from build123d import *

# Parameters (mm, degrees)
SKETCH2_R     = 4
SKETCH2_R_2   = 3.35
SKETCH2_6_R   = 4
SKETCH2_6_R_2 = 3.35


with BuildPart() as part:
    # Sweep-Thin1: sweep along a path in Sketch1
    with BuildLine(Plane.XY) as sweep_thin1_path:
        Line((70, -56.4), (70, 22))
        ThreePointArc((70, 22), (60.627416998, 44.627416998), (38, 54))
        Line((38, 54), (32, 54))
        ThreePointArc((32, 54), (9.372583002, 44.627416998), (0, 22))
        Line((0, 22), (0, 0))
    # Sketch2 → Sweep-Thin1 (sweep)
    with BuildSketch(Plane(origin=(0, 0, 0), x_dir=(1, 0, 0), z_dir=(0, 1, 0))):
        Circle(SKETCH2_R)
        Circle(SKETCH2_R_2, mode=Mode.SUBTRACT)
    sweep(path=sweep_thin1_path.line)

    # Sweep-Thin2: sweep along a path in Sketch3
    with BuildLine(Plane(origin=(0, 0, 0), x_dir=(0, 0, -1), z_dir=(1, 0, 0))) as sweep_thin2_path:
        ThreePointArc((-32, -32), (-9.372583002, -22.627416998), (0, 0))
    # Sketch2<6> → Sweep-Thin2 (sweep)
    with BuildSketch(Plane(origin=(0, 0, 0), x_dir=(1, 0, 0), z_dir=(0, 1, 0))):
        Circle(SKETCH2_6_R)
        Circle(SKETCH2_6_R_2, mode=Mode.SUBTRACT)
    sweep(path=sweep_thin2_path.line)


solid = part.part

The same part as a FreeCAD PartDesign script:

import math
import FreeCAD as App
import Part
import Sketcher

V = App.Vector
Q = App.Units.Quantity

doc = App.newDocument("Part")
body = doc.addObject("PartDesign::Body", "Body")

# Sketch on XZ plane
sketch1 = body.newObject("Sketcher::SketchObject", "Sketch")
sketch1.AttachmentSupport = (doc.getObject("XZ_Plane"), [""])
sketch1.MapMode = "FlatFace"
sketch1.addGeometry(Part.Circle(V(0, 0, 0), V(0, 0, 1), 4), False)
sketch1.addGeometry(Part.Circle(V(0, 0, 0), V(0, 0, 1), 3.4), False)
sketch1.addConstraint(Sketcher.Constraint("Coincident", 0, 3, -1, 1))
sketch1.addConstraint(Sketcher.Constraint("Coincident", 1, 3, -1, 1))
sketch1.addConstraint(Sketcher.Constraint("Diameter", 0, Q("8 mm")))
sketch1.addConstraint(Sketcher.Constraint("Diameter", 1, Q("6.7 mm")))

# Sketch on XY plane
sketch2 = body.newObject("Sketcher::SketchObject", "Sketch001")
sketch2.AttachmentSupport = (doc.getObject("XY_Plane"), [""])
sketch2.MapMode = "FlatFace"
sketch2.addGeometry(Part.LineSegment(V(70, -56, 0), V(70, 22, 0)), False)
sketch2.addGeometry(Part.ArcOfCircle(Part.Circle(V(38, 22, 0), V(0, 0, 1), 32), math.radians(0), math.radians(90)), False)
sketch2.addGeometry(Part.LineSegment(V(38, 54, 0), V(32, 54, 0)), False)
sketch2.addGeometry(Part.ArcOfCircle(Part.Circle(V(32, 22, 0), V(0, 0, 1), 32), math.radians(90), math.radians(180)), False)
sketch2.addGeometry(Part.LineSegment(V(0, 22, 0), V(0, 0, 0)), False)
sketch2.addConstraint(Sketcher.Constraint("Tangent", 0, 2, 1, 1))
sketch2.addConstraint(Sketcher.Constraint("Tangent", 1, 2, 2, 1))
sketch2.addConstraint(Sketcher.Constraint("Tangent", 2, 2, 3, 1))
sketch2.addConstraint(Sketcher.Constraint("Tangent", 3, 2, 4, 1))
sketch2.addConstraint(Sketcher.Constraint("Vertical", 0))
sketch2.addConstraint(Sketcher.Constraint("Horizontal", 2))
sketch2.addConstraint(Sketcher.Constraint("Vertical", 4))
sketch2.addConstraint(Sketcher.Constraint("Coincident", 4, 2, -1, 1))
sketch2.addConstraint(Sketcher.Constraint("Equal", 1, 3))
sketch2.addConstraint(Sketcher.Constraint("Radius", 1, Q("32 mm")))
sketch2.addConstraint(Sketcher.Constraint("DistanceX", 2, 2, 2, 1, Q("6 mm")))
sketch2.addConstraint(Sketcher.Constraint("DistanceY", 4, 2, 4, 1, Q("22 mm")))
sketch2.addConstraint(Sketcher.Constraint("DistanceY", 0, 1, 0, 2, Q("78.4 mm")))
doc.recompute()

additivepipe = body.newObject("PartDesign::AdditivePipe", "AdditivePipe")
additivepipe.Profile = sketch1
additivepipe.Spine = (sketch2, ["Edge1", "Edge2", "Edge3", "Edge4", "Edge5"])

# Sketch on XZ plane
sketch3 = body.newObject("Sketcher::SketchObject", "Sketch002")
sketch3.AttachmentSupport = (doc.getObject("XZ_Plane"), [""])
sketch3.MapMode = "FlatFace"
sketch3.addGeometry(Part.Circle(V(0, 0, 0), V(0, 0, 1), 4), False)
sketch3.addGeometry(Part.Circle(V(0, 0, 0), V(0, 0, 1), 3.4), False)
sketch3.addConstraint(Sketcher.Constraint("Coincident", 0, 3, -1, 1))
sketch3.addConstraint(Sketcher.Constraint("Coincident", 1, 3, -1, 1))
sketch3.addConstraint(Sketcher.Constraint("Diameter", 0, Q("8 mm")))
sketch3.addConstraint(Sketcher.Constraint("Diameter", 1, Q("6.7 mm")))

# Sketch on YZ plane
sketch4 = body.newObject("Sketcher::SketchObject", "Sketch003")
sketch4.AttachmentSupport = (doc.getObject("YZ_Plane"), [""])
sketch4.MapMode = "FlatFace"
sketch4.addGeometry(Part.ArcOfCircle(Part.Circle(V(0, 32, 0), V(0, 0, 1), 32), math.radians(180), math.radians(270)), False)
sketch4.addConstraint(Sketcher.Constraint("Coincident", 0, 2, -1, 1))
sketch4.addConstraint(Sketcher.Constraint("PointOnObject", 0, 3, -2))
sketch4.addConstraint(Sketcher.Constraint("Radius", 0, Q("32 mm")))
sketch4.addConstraint(Sketcher.Constraint("DistanceY", -1, 1, 0, 1, Q("32 mm")))
doc.recompute()

additivepipe2 = body.newObject("PartDesign::AdditivePipe", "AdditivePipe001")
additivepipe2.Profile = sketch3
additivepipe2.Spine = (sketch4, ["Edge1"])

doc.recompute()
